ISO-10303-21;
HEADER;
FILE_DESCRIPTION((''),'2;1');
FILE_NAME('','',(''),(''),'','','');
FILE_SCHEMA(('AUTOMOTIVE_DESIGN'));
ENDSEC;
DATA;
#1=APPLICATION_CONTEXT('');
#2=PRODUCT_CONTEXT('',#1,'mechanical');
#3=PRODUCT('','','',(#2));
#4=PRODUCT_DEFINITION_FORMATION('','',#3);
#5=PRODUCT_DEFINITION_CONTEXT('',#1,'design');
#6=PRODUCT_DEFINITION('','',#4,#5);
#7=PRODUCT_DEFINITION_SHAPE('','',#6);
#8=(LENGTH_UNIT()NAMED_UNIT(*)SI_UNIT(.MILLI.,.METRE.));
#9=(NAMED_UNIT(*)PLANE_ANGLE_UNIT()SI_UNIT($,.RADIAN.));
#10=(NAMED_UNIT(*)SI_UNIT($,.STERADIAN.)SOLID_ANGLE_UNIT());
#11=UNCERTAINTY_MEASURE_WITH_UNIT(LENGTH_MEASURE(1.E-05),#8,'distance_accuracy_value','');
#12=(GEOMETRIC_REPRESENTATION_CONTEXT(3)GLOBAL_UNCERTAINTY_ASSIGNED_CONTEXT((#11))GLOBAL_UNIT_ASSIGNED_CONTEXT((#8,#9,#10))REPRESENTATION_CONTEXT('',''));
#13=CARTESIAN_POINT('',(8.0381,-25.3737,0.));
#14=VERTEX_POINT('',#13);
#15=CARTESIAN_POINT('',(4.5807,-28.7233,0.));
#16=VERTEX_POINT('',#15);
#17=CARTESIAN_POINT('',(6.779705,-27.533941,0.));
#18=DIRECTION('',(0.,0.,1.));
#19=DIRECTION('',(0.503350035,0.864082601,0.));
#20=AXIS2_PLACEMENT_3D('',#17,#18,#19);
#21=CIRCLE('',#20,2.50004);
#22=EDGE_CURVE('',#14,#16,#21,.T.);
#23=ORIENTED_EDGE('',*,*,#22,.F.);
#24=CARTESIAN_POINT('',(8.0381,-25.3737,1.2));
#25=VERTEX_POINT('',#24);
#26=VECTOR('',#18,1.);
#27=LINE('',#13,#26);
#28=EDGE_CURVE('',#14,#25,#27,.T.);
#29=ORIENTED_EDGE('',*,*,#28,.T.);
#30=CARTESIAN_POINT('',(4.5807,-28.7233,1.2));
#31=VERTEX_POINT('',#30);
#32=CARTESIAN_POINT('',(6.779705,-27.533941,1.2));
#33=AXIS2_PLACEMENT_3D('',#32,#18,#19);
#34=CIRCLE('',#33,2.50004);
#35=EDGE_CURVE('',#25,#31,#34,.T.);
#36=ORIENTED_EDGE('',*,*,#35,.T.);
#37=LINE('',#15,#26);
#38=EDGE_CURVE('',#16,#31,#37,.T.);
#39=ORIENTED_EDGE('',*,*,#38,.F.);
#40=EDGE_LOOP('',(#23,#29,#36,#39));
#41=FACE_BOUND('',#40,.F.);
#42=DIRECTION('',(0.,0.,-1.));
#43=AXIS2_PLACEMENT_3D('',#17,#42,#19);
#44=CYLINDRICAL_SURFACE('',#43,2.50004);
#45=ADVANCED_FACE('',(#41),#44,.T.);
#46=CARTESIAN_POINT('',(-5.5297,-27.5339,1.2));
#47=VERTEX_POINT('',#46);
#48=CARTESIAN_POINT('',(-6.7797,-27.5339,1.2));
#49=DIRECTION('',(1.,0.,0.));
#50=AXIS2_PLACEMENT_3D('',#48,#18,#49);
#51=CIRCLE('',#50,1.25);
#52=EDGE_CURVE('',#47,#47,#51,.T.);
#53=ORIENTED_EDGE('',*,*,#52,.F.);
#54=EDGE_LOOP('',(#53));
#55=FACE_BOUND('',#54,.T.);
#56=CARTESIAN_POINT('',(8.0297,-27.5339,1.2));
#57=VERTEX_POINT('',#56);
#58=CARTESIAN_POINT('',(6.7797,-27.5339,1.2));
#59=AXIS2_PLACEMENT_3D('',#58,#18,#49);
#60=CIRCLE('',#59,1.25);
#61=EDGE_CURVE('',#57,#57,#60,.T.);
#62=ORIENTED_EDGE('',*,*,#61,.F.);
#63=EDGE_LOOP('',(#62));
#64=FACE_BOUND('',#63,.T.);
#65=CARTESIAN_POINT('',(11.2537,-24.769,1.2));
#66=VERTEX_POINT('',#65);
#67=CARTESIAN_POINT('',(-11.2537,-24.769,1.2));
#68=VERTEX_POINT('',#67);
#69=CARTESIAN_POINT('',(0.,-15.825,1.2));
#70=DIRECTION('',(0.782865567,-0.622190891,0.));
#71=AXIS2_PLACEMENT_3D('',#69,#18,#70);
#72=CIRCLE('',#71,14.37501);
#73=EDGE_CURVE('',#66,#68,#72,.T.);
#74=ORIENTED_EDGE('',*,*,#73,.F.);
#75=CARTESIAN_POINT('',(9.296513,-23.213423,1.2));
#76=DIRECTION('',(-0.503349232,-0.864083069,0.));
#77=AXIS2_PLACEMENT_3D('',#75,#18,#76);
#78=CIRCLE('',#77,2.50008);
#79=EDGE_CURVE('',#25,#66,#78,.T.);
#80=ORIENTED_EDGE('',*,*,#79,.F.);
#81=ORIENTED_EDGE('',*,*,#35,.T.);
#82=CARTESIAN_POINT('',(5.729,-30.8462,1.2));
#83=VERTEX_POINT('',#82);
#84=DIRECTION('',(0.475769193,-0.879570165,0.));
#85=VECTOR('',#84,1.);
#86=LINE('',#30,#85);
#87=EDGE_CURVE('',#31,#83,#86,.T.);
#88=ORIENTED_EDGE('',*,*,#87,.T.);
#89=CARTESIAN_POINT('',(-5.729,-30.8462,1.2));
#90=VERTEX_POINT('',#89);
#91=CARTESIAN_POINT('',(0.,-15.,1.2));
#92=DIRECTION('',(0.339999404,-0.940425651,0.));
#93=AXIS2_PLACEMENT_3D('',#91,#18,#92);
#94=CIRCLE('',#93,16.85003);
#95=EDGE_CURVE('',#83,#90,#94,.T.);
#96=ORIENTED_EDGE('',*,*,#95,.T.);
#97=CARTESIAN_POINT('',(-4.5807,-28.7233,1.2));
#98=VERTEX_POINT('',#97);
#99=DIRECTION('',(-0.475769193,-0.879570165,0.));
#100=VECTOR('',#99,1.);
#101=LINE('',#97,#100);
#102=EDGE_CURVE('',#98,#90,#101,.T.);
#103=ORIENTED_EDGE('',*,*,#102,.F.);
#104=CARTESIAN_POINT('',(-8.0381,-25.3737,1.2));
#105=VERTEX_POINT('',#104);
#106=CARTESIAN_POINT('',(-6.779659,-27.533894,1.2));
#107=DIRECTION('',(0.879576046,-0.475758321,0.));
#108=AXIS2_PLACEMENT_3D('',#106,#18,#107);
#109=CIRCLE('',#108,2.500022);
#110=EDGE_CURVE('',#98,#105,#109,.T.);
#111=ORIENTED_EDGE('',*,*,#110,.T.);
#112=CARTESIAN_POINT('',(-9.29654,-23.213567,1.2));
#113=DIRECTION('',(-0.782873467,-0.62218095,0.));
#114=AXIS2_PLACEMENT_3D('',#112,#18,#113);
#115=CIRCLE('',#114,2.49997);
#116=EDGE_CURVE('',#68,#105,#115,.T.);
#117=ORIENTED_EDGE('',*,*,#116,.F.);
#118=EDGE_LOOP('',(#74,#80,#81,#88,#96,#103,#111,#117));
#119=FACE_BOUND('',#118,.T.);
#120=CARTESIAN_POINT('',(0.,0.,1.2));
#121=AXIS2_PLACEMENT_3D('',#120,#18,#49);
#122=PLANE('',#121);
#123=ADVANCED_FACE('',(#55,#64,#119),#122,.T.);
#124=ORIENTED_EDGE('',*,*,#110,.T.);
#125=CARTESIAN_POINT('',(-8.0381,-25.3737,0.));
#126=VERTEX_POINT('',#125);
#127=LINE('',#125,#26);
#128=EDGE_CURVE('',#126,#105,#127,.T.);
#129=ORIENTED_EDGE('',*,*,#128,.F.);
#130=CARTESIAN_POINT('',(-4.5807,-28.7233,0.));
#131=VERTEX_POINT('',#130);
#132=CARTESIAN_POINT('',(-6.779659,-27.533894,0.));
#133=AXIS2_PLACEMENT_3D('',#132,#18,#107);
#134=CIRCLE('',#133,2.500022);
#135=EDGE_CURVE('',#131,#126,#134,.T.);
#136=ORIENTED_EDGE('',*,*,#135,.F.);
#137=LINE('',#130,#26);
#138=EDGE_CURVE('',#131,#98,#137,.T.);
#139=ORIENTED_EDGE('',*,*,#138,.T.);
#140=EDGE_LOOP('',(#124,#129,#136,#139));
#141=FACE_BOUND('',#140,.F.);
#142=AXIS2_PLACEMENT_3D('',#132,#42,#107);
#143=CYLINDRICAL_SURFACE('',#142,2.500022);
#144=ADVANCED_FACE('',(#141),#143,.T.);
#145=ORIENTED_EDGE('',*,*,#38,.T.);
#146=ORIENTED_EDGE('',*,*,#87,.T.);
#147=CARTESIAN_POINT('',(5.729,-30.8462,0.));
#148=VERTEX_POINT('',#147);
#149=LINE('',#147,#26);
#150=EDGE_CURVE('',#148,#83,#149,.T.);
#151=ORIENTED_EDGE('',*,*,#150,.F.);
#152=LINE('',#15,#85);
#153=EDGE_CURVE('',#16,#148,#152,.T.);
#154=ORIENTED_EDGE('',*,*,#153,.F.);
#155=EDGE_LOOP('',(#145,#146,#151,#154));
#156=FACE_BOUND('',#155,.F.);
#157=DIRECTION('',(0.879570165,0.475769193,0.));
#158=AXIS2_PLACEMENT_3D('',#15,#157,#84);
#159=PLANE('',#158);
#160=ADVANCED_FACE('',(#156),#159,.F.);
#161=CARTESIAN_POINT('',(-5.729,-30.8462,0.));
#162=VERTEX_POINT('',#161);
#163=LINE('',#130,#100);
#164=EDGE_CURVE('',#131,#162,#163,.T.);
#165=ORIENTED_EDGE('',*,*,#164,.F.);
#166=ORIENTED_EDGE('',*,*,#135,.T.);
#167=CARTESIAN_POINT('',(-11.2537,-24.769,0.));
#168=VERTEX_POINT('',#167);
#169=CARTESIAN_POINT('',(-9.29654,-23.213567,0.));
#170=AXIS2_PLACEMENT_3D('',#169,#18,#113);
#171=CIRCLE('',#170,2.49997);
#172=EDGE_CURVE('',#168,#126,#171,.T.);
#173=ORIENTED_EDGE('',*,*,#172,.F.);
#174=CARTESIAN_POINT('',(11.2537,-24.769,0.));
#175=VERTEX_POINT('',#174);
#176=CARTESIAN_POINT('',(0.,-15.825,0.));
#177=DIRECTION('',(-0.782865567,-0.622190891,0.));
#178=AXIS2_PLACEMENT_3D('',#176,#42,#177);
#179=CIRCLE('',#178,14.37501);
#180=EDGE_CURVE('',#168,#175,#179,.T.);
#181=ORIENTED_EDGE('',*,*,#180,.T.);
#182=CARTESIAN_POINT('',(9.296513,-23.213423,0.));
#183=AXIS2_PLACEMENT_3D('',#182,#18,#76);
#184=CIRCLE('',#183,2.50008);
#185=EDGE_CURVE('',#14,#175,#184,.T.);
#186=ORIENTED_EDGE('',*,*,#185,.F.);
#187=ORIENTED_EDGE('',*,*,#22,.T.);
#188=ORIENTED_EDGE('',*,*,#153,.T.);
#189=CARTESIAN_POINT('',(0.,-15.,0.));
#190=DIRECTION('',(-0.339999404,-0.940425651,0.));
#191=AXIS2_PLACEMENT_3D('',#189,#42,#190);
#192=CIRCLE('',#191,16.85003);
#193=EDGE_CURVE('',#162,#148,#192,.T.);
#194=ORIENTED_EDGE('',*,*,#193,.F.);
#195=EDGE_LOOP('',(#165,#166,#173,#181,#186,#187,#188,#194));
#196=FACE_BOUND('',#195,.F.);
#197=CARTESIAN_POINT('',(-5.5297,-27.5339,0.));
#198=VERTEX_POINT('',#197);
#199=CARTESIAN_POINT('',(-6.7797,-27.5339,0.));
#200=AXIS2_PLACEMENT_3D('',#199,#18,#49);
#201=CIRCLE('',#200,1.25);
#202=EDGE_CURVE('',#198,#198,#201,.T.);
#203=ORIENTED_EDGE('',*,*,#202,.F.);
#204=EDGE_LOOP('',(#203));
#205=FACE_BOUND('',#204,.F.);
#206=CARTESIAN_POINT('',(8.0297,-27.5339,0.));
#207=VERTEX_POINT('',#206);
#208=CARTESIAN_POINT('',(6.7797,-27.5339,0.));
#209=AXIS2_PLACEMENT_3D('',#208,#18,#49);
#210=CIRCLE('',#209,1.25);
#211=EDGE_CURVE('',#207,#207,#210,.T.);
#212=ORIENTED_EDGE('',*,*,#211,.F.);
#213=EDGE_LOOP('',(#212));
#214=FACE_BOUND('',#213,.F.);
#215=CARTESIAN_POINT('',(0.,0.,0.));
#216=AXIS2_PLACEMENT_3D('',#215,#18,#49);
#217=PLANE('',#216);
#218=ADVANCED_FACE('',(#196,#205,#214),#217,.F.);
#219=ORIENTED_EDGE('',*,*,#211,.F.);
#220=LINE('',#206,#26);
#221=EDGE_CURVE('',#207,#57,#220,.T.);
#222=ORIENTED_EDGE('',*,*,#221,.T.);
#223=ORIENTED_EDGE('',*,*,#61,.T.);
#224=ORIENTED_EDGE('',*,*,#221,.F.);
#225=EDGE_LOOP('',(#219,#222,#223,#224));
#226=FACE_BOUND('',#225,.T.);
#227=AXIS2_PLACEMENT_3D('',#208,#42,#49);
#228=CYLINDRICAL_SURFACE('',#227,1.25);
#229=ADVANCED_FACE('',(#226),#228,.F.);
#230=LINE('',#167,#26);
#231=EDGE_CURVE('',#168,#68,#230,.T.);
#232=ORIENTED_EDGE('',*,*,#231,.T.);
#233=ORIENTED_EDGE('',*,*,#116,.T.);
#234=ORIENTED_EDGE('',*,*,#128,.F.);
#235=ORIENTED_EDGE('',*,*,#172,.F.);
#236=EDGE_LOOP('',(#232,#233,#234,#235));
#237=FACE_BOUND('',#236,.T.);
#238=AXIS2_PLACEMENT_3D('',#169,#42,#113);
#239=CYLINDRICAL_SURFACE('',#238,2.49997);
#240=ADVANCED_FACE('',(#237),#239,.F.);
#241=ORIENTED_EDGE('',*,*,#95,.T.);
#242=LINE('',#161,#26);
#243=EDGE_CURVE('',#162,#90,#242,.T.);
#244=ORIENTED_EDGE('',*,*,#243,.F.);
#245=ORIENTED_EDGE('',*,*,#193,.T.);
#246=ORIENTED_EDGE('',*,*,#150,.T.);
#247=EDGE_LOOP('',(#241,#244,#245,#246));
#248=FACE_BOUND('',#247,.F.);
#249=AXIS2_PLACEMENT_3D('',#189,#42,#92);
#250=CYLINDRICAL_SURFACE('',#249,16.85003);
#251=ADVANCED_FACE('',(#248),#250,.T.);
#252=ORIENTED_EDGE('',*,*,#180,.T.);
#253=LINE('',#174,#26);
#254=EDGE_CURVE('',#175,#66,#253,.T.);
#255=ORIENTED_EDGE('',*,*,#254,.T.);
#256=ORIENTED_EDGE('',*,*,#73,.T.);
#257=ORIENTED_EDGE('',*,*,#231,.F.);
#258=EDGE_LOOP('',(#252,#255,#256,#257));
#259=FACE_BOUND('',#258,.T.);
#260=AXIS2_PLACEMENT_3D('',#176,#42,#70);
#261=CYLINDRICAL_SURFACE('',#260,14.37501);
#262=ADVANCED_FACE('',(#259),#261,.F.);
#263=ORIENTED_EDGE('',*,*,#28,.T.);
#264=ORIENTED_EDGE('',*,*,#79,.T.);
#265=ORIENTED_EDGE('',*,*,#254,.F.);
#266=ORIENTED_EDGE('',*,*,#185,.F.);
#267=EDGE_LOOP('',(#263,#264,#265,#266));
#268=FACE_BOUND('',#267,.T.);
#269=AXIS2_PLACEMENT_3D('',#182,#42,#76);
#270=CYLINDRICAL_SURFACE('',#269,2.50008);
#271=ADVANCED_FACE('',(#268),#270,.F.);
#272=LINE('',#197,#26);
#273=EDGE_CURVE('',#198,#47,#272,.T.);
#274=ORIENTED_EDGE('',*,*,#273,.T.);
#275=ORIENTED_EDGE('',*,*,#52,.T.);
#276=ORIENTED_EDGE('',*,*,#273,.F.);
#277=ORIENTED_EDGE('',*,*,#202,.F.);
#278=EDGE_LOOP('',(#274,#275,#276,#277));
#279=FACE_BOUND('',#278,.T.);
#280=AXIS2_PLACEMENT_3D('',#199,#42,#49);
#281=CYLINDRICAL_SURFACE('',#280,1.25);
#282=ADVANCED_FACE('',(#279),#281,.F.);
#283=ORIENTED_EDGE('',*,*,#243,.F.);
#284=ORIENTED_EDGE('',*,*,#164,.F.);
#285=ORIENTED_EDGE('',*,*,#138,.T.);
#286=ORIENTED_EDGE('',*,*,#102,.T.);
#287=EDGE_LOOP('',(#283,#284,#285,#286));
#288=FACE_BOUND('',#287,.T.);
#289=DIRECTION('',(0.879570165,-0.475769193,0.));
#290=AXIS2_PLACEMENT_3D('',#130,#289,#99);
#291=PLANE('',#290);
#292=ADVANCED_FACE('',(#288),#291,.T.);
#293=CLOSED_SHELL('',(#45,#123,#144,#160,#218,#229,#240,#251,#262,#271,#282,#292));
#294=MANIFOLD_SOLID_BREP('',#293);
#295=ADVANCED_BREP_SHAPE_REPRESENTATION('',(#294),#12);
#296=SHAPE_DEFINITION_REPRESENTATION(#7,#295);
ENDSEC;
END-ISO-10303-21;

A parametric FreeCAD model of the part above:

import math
import FreeCAD as App
import Part
import Sketcher
Q = App.Units.Quantity

doc = App.newDocument("Part")
body = doc.addObject("PartDesign::Body", "Body")

# Sketch on XY plane
sketch1 = body.newObject("Sketcher::SketchObject", "Sketch")
sketch1.AttachmentSupport = (doc.getObject("XY_Plane"), [""])
sketch1.MapMode = "FlatFace"
sketch1.addGeometry([
    Part.ArcOfCircle(Part.Circle(App.Vector(9.3, -23.2, 0), App.Vector(0, 0, 1), 2.5), math.radians(-120), math.radians(-38)),  # 0
    Part.ArcOfCircle(Part.Circle(App.Vector(6.8, -27.5, 0), App.Vector(0, 0, 1), 2.5), math.radians(60), math.radians(208)),  # 1
    Part.LineSegment(App.Vector(4.6, -28.7, 0), App.Vector(5.7, -30.8, 0)),  # 2
    Part.ArcOfCircle(Part.Circle(App.Vector(0, -15, 0), App.Vector(0, 0, 1), 16.9), math.radians(-70), math.radians(250)),  # 3
    Part.LineSegment(App.Vector(-5.7, -30.8, 0), App.Vector(-4.6, -28.7, 0)),  # 4
    Part.ArcOfCircle(Part.Circle(App.Vector(-6.8, -27.5, 0), App.Vector(0, 0, 1), 2.5), math.radians(-28), math.radians(120)),  # 5
    Part.ArcOfCircle(Part.Circle(App.Vector(-9.3, -23.2, 0), App.Vector(0, 0, 1), 2.5), math.radians(-142), math.radians(-60)),  # 6
    Part.ArcOfCircle(Part.Circle(App.Vector(0, -15.8, 0), App.Vector(0, 0, 1), 14.4), math.radians(-38), math.radians(218)),  # 7
    Part.Circle(App.Vector(6.8, -27.5, 0), App.Vector(0, 0, 1), 1.2),  # 8
    Part.Circle(App.Vector(-6.8, -27.5, 0), App.Vector(0, 0, 1), 1.2),  # 9
], False)
sketch1.addConstraint([
    Sketcher.Constraint("Tangent", 0, 1, 1, 1),
    Sketcher.Constraint("Tangent", 1, 2, 2, 1),
    Sketcher.Constraint("Coincident", 2, 2, 3, 1),
    Sketcher.Constraint("Coincident", 3, 2, 4, 1),
    Sketcher.Constraint("Tangent", 4, 2, 5, 1),
    Sketcher.Constraint("Tangent", 5, 2, 6, 2),
    Sketcher.Constraint("Tangent", 6, 1, 7, 2),
    Sketcher.Constraint("Tangent", 7, 1, 0, 2),
    Sketcher.Constraint("Coincident", 8, 3, 1, 3),
    Sketcher.Constraint("Coincident", 9, 3, 5, 3),
    Sketcher.Constraint("Equal", 0, 1),
    Sketcher.Constraint("Equal", 1, 5),
    Sketcher.Constraint("Equal", 5, 6),
    Sketcher.Constraint("Equal", 8, 9),
    Sketcher.Constraint("Symmetric", 1, 3, 5, 3, -2),
    Sketcher.Constraint("Symmetric", 2, 2, 3, 2, -2),
    Sketcher.Constraint("PointOnObject", 7, 3, -2),
    Sketcher.Constraint("Diameter", 8, Q("2.5 mm")),
    Sketcher.Constraint("Radius", 0, Q("2.5 mm")),
    Sketcher.Constraint("Radius", 3, Q("16.85 mm")),
    Sketcher.Constraint("DistanceY", 3, 3, -1, 1, Q("15 mm")),
    Sketcher.Constraint("DistanceX", -1, 1, 2, 2, Q("5.729 mm")),
    Sketcher.Constraint("Radius", 7, Q("14.375 mm")),
    Sketcher.Constraint("DistanceY", 7, 3, 3, 3, Q("0.825 mm")),
    Sketcher.Constraint("Angle", 2, Q("-61.5906 deg")),
    Sketcher.Constraint("DistanceY", 1, 3, -1, 1, Q("27.534 mm")),
])
pad1 = body.newObject("PartDesign::Pad", "Pad")
pad1.Profile = sketch1
pad1.Length = 1.2

doc.recompute()
